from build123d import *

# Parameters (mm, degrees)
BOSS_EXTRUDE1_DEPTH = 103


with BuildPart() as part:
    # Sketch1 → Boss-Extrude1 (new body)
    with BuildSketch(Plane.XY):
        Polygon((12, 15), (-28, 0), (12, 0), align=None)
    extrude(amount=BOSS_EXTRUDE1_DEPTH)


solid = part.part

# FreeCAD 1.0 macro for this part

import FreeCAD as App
import Part
import Sketcher


def add_polygon(sketch, points):
    """Adds a closed chain of lines whose ends are joined by coincident constraints."""
    first, n = sketch.GeometryCount, len(points)
    for a, b in zip(points, points[1:] + points[:1]):
        sketch.addGeometry(Part.LineSegment(App.Vector(*a, 0), App.Vector(*b, 0)), False)
    for i in range(n):
        sketch.addConstraint(Sketcher.Constraint("Coincident", first + i, 2, first + (i + 1) % n, 1))

doc = App.newDocument("Part")
body = doc.addObject("PartDesign::Body", "Body")

# Sketch on XY plane
sketch1 = doc.addObject("Sketcher::SketchObject", "Sketch")
body.addObject(sketch1)
sketch1.AttachmentSupport = (doc.XY_Plane, [""])
sketch1.MapMode = "FlatFace"
add_polygon(sketch1, [(12, 15), (-28, 0), (12, 0)])  # lines 0-2
sketch1.addConstraint(Sketcher.Constraint("Horizontal", 1))
sketch1.addConstraint(Sketcher.Constraint("Vertical", 2))
sketch1.addConstraint(Sketcher.Constraint("PointOnObject", 0, 2, -1))
sketch1.addConstraint(Sketcher.Constraint("DistanceX", 1, 1, 1, 2, 40.0))
sketch1.addConstraint(Sketcher.Constraint("DistanceY", 2, 1, 2, 2, 15.0))
sketch1.addConstraint(Sketcher.Constraint("DistanceX", 0, 2, -1, 1, 28.0))
pad1 = doc.addObject("PartDesign::Pad", "Pad")
body.addObject(pad1)
pad1.Profile = sketch1
pad1.Length = 103

doc.recompute()
